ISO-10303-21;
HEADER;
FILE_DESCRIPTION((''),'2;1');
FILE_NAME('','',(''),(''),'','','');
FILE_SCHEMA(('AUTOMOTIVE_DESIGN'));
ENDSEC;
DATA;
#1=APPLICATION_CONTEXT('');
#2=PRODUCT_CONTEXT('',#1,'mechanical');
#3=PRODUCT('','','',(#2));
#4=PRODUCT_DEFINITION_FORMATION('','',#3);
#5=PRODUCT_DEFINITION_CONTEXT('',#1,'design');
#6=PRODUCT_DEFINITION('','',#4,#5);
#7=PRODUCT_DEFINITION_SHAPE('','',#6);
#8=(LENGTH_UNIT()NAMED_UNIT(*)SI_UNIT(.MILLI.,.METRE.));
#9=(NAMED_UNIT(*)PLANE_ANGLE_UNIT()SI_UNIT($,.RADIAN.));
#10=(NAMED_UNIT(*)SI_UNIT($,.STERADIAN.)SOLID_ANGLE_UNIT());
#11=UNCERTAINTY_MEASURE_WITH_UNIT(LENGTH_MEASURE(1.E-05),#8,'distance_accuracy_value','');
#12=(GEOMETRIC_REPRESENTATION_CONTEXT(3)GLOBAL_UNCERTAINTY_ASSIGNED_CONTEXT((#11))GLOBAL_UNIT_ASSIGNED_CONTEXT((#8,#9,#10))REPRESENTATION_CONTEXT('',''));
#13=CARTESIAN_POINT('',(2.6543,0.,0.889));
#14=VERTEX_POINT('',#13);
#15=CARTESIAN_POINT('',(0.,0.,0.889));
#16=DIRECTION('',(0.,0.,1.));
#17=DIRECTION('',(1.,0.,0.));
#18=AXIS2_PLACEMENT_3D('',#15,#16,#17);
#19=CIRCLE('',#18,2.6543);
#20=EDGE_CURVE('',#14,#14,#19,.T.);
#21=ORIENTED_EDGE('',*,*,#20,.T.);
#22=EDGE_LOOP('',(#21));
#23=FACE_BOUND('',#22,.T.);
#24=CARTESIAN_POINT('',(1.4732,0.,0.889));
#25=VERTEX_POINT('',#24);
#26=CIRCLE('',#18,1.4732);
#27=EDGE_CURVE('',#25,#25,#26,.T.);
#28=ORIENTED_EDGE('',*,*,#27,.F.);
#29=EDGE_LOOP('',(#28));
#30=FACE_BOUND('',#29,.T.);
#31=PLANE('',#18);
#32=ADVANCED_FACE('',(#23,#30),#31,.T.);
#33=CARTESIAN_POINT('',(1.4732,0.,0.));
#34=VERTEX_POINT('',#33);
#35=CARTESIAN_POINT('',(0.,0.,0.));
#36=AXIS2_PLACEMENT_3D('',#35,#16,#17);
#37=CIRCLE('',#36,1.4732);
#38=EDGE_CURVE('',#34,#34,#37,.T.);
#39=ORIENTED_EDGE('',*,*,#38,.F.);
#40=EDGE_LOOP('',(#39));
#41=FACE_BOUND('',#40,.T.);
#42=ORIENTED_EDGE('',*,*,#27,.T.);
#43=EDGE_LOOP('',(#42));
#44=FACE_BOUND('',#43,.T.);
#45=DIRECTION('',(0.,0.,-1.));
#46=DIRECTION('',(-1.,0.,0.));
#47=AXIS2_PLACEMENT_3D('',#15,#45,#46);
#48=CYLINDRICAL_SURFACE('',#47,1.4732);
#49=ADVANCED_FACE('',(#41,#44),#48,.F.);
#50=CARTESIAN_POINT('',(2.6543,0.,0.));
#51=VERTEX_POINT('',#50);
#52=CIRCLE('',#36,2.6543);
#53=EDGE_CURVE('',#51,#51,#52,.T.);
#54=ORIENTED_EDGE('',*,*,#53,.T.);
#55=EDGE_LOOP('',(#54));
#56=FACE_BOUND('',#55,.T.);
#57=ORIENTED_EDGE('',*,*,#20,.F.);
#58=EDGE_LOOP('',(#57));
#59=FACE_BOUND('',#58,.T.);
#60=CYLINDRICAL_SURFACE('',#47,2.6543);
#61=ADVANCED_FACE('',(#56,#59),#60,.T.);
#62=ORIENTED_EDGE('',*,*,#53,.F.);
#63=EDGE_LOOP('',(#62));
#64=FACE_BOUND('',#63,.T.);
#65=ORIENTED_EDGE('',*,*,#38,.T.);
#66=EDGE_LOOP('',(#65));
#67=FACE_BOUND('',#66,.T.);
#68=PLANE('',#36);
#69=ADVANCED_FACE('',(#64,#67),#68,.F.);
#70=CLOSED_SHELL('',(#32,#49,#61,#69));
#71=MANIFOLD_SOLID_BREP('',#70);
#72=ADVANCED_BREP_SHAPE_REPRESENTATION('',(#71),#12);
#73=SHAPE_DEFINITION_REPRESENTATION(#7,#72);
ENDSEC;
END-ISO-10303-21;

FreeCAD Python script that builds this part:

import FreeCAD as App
import Part
import Sketcher
Q = App.Units.Quantity

doc = App.newDocument("Part")
body = doc.addObject("PartDesign::Body", "Body")

# Sketch on XY plane
sketch1 = body.newObject("Sketcher::SketchObject", "Sketch")
sketch1.AttachmentSupport = (doc.getObject("XY_Plane"), [""])
sketch1.MapMode = "FlatFace"
sketch1.addGeometry(Part.Circle(App.Vector(0, 0, 0), App.Vector(0, 0, 1), 2.7), False)
sketch1.addGeometry(Part.Circle(App.Vector(0, 0, 0), App.Vector(0, 0, 1), 1.5), False)
sketch1.addConstraint(Sketcher.Constraint("Coincident", 0, 3, -1, 1))
sketch1.addConstraint(Sketcher.Constraint("Coincident", 1, 3, -1, 1))
sketch1.addConstraint(Sketcher.Constraint("Diameter", 0, Q("0.209 in")))
sketch1.addConstraint(Sketcher.Constraint("Diameter", 1, Q("0.116 in")))
pad1 = body.newObject("PartDesign::Pad", "Pad")
pad1.Profile = sketch1
pad1.Length = Q("0.035 in")

doc.recompute()
